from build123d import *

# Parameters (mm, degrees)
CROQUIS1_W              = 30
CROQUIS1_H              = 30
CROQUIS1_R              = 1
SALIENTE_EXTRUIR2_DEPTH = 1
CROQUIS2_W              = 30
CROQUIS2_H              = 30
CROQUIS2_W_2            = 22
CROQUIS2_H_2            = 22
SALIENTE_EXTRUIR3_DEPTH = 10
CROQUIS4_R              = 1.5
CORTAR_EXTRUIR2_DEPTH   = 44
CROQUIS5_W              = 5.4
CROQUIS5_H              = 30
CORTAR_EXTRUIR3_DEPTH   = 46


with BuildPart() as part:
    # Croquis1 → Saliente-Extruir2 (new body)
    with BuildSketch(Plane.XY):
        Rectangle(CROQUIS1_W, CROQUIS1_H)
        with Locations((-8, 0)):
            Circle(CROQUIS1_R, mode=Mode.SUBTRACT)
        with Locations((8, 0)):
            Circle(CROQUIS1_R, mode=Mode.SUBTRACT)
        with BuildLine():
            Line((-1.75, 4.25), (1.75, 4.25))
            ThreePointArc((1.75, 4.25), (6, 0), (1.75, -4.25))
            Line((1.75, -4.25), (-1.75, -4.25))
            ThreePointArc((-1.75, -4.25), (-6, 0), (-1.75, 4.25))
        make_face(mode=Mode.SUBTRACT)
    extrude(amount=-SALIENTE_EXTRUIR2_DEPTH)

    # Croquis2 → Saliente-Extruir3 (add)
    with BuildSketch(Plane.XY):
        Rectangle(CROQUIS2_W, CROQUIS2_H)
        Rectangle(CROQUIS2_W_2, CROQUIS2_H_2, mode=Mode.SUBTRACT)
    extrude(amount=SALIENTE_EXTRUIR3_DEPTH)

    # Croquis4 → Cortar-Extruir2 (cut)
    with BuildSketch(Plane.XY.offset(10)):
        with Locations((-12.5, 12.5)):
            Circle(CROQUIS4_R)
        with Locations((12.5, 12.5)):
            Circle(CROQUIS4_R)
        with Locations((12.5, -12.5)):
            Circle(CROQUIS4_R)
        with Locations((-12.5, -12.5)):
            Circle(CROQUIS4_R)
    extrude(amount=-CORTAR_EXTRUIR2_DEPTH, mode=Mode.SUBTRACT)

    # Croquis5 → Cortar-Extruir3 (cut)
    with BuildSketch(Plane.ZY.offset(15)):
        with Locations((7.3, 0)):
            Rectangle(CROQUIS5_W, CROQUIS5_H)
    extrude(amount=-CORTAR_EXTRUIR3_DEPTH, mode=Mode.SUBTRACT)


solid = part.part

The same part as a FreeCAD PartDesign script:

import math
import FreeCAD as App
import Part
import Sketcher
from FreeCAD import Vector
Q = App.Units.Quantity


def add_polygon(sketch, points):
    """Adds a closed chain of lines whose ends are joined by coincident constraints."""
    first, n = sketch.GeometryCount, len(points)
    for a, b in zip(points, points[1:] + points[:1]):
        sketch.addGeometry(Part.LineSegment(App.Vector(*a, 0), App.Vector(*b, 0)), False)
    for i in range(n):
        sketch.addConstraint(Sketcher.Constraint("Coincident", first + i, 2, first + (i + 1) % n, 1))

doc = App.newDocument("Part")
body = doc.addObject("PartDesign::Body", "Body")

# Sketch on XY plane
sketch1 = body.newObject("Sketcher::SketchObject", "Sketch")
sketch1.AttachmentSupport = (doc.getObject("XY_Plane"), [""])
sketch1.MapMode = "FlatFace"
add_polygon(sketch1, [(-15, 15), (-15, -15), (15, -15), (15, 15)])  # lines 0-3
sketch1.addGeometry(Part.Circle(Vector(-8, 0, 0), Vector(0, 0, 1), 1), False)  # 4
sketch1.addGeometry(Part.ArcOfCircle(Part.Circle(Vector(-1.8, 0, 0), Vector(0, 0, 1), 4.2), math.radians(90), math.radians(270)), False)  # 5
sketch1.addGeometry(Part.LineSegment(Vector(-1.8, 4.2, 0), Vector(1.8, 4.2, 0)), False)  # 6
sketch1.addGeometry(Part.ArcOfCircle(Part.Circle(Vector(1.8, 0, 0), Vector(0, 0, 1), 4.2), math.radians(-90), math.radians(90)), False)  # 7
sketch1.addGeometry(Part.LineSegment(Vector(1.8, -4.2, 0), Vector(-1.8, -4.2, 0)), False)  # 8
sketch1.addGeometry(Part.Circle(Vector(8, 0, 0), Vector(0, 0, 1), 1), False)  # 9
sketch1.addConstraint([
    Sketcher.Constraint("Tangent", 5, 1, 6, 1),
    Sketcher.Constraint("Tangent", 6, 2, 7, 2),
    Sketcher.Constraint("Tangent", 7, 1, 8, 1),
    Sketcher.Constraint("Tangent", 8, 2, 5, 2),
    Sketcher.Constraint("Vertical", 0),
    Sketcher.Constraint("Horizontal", 1),
    Sketcher.Constraint("Vertical", 2),
    Sketcher.Constraint("Horizontal", 3),
    Sketcher.Constraint("Horizontal", 6),
    Sketcher.Constraint("Horizontal", 8),
    Sketcher.Constraint("Equal", 4, 9),
    Sketcher.Constraint("Symmetric", 5, 3, 7, 3, -1, 1),
    Sketcher.Constraint("Symmetric", 4, 3, 9, 3, -1, 1),
    Sketcher.Constraint("Symmetric", 0, 2, 2, 2, -1, 1),
    Sketcher.Constraint("PointOnObject", 4, 3, -1),
    Sketcher.Constraint("Equal", 3, 0),
    Sketcher.Constraint("Diameter", 4, Q("2 mm")),
    Sketcher.Constraint("DistanceX", 1, 1, 1, 2, Q("30 mm")),
    Sketcher.Constraint("Radius", 5, Q("4.25 mm")),
    Sketcher.Constraint("DistanceX", 6, 1, 6, 2, Q("3.5 mm")),
    Sketcher.Constraint("DistanceX", 4, 3, -1, 1, Q("8 mm")),
])
pad1 = body.newObject("PartDesign::Pad", "Pad")
pad1.Profile = sketch1
pad1.Length = 1
pad1.Reversed = True

# Sketch on XY plane
sketch2 = body.newObject("Sketcher::SketchObject", "Sketch001")
sketch2.AttachmentSupport = (doc.getObject("XY_Plane"), [""])
sketch2.MapMode = "FlatFace"
add_polygon(sketch2, [(-15, 15), (-15, -15), (15, -15), (15, 15)])  # lines 0-3
add_polygon(sketch2, [(11, -11), (-11, -11), (-11, 11), (11, 11)])  # lines 4-7
sketch2.addConstraint([
    Sketcher.Constraint("Vertical", 0),
    Sketcher.Constraint("Horizontal", 1),
    Sketcher.Constraint("Vertical", 2),
    Sketcher.Constraint("Horizontal", 3),
    Sketcher.Constraint("Horizontal", 4),
    Sketcher.Constraint("Vertical", 5),
    Sketcher.Constraint("Horizontal", 6),
    Sketcher.Constraint("Vertical", 7),
    Sketcher.Constraint("Symmetric", 0, 2, 2, 2, -1, 1),
    Sketcher.Constraint("Symmetric", 4, 2, 6, 2, -1, 1),
    Sketcher.Constraint("Equal", 3, 0),
    Sketcher.Constraint("Equal", 6, 5),
    Sketcher.Constraint("DistanceX", 1, 1, 1, 2, Q("30 mm")),
    Sketcher.Constraint("DistanceX", 4, 2, 4, 1, Q("22 mm")),
])
pad2 = body.newObject("PartDesign::Pad", "Pad001")
pad2.Profile = sketch2
pad2.Length = 10

# Sketch on XY plane
sketch3 = body.newObject("Sketcher::SketchObject", "Sketch002")
sketch3.AttachmentSupport = (doc.getObject("XY_Plane"), [""])
sketch3.MapMode = "FlatFace"
sketch3.AttachmentOffset = App.Placement(Vector(0, 0, 10), App.Rotation())
sketch3.addGeometry([
    Part.Circle(Vector(-12.5, 12.5, 0), Vector(0, 0, 1), 1.5),
    Part.Circle(Vector(12.5, 12.5, 0), Vector(0, 0, 1), 1.5),
    Part.Circle(Vector(12.5, -12.5, 0), Vector(0, 0, 1), 1.5),
    Part.Circle(Vector(-12.5, -12.5, 0), Vector(0, 0, 1), 1.5),
], False)
sketch3.addConstraint([
    Sketcher.Constraint("Equal", 0, 1),
    Sketcher.Constraint("Equal", 1, 2),
    Sketcher.Constraint("Equal", 2, 3),
    Sketcher.Constraint("Symmetric", 0, 3, 2, 3, -1, 1),
    Sketcher.Constraint("Symmetric", 1, 3, 3, 3, -1, 1),
    Sketcher.Constraint("Symmetric", 0, 3, 1, 3, -2),
    Sketcher.Constraint("Diameter", 0, Q("3 mm")),
    Sketcher.Constraint("DistanceX", 0, 3, 1, 3, Q("25 mm")),
    Sketcher.Constraint("DistanceY", 2, 3, 1, 3, Q("25 mm")),
])
pocket1 = body.newObject("PartDesign::Pocket", "Pocket")
pocket1.Profile = sketch3
pocket1.Length = 44

# Sketch on YZ plane
sketch4 = body.newObject("Sketcher::SketchObject", "Sketch003")
sketch4.AttachmentSupport = (doc.getObject("YZ_Plane"), [""])
sketch4.MapMode = "FlatFace"
sketch4.AttachmentOffset = App.Placement(Vector(0, 0, -15), App.Rotation())
add_polygon(sketch4, [(15, 5), (-15, 5), (-15, 10), (15, 10)])  # lines 0-3
sketch4.addConstraint([
    Sketcher.Constraint("Horizontal", 0),
    Sketcher.Constraint("Vertical", 1),
    Sketcher.Constraint("Horizontal", 2),
    Sketcher.Constraint("Vertical", 3),
    Sketcher.Constraint("DistanceX", 0, 2, 0, 1, Q("30 mm")),
    Sketcher.Constraint("DistanceY", 1, 1, 1, 2, Q("5.4 mm")),
    Sketcher.Constraint("DistanceX", 0, 2, -1, 1, Q("15 mm")),
    Sketcher.Constraint("DistanceY", -1, 1, 1, 2, Q("10 mm")),
])
pocket2 = body.newObject("PartDesign::Pocket", "Pocket001")
pocket2.Profile = sketch4
pocket2.Length = 46
pocket2.Reversed = True

doc.recompute()
